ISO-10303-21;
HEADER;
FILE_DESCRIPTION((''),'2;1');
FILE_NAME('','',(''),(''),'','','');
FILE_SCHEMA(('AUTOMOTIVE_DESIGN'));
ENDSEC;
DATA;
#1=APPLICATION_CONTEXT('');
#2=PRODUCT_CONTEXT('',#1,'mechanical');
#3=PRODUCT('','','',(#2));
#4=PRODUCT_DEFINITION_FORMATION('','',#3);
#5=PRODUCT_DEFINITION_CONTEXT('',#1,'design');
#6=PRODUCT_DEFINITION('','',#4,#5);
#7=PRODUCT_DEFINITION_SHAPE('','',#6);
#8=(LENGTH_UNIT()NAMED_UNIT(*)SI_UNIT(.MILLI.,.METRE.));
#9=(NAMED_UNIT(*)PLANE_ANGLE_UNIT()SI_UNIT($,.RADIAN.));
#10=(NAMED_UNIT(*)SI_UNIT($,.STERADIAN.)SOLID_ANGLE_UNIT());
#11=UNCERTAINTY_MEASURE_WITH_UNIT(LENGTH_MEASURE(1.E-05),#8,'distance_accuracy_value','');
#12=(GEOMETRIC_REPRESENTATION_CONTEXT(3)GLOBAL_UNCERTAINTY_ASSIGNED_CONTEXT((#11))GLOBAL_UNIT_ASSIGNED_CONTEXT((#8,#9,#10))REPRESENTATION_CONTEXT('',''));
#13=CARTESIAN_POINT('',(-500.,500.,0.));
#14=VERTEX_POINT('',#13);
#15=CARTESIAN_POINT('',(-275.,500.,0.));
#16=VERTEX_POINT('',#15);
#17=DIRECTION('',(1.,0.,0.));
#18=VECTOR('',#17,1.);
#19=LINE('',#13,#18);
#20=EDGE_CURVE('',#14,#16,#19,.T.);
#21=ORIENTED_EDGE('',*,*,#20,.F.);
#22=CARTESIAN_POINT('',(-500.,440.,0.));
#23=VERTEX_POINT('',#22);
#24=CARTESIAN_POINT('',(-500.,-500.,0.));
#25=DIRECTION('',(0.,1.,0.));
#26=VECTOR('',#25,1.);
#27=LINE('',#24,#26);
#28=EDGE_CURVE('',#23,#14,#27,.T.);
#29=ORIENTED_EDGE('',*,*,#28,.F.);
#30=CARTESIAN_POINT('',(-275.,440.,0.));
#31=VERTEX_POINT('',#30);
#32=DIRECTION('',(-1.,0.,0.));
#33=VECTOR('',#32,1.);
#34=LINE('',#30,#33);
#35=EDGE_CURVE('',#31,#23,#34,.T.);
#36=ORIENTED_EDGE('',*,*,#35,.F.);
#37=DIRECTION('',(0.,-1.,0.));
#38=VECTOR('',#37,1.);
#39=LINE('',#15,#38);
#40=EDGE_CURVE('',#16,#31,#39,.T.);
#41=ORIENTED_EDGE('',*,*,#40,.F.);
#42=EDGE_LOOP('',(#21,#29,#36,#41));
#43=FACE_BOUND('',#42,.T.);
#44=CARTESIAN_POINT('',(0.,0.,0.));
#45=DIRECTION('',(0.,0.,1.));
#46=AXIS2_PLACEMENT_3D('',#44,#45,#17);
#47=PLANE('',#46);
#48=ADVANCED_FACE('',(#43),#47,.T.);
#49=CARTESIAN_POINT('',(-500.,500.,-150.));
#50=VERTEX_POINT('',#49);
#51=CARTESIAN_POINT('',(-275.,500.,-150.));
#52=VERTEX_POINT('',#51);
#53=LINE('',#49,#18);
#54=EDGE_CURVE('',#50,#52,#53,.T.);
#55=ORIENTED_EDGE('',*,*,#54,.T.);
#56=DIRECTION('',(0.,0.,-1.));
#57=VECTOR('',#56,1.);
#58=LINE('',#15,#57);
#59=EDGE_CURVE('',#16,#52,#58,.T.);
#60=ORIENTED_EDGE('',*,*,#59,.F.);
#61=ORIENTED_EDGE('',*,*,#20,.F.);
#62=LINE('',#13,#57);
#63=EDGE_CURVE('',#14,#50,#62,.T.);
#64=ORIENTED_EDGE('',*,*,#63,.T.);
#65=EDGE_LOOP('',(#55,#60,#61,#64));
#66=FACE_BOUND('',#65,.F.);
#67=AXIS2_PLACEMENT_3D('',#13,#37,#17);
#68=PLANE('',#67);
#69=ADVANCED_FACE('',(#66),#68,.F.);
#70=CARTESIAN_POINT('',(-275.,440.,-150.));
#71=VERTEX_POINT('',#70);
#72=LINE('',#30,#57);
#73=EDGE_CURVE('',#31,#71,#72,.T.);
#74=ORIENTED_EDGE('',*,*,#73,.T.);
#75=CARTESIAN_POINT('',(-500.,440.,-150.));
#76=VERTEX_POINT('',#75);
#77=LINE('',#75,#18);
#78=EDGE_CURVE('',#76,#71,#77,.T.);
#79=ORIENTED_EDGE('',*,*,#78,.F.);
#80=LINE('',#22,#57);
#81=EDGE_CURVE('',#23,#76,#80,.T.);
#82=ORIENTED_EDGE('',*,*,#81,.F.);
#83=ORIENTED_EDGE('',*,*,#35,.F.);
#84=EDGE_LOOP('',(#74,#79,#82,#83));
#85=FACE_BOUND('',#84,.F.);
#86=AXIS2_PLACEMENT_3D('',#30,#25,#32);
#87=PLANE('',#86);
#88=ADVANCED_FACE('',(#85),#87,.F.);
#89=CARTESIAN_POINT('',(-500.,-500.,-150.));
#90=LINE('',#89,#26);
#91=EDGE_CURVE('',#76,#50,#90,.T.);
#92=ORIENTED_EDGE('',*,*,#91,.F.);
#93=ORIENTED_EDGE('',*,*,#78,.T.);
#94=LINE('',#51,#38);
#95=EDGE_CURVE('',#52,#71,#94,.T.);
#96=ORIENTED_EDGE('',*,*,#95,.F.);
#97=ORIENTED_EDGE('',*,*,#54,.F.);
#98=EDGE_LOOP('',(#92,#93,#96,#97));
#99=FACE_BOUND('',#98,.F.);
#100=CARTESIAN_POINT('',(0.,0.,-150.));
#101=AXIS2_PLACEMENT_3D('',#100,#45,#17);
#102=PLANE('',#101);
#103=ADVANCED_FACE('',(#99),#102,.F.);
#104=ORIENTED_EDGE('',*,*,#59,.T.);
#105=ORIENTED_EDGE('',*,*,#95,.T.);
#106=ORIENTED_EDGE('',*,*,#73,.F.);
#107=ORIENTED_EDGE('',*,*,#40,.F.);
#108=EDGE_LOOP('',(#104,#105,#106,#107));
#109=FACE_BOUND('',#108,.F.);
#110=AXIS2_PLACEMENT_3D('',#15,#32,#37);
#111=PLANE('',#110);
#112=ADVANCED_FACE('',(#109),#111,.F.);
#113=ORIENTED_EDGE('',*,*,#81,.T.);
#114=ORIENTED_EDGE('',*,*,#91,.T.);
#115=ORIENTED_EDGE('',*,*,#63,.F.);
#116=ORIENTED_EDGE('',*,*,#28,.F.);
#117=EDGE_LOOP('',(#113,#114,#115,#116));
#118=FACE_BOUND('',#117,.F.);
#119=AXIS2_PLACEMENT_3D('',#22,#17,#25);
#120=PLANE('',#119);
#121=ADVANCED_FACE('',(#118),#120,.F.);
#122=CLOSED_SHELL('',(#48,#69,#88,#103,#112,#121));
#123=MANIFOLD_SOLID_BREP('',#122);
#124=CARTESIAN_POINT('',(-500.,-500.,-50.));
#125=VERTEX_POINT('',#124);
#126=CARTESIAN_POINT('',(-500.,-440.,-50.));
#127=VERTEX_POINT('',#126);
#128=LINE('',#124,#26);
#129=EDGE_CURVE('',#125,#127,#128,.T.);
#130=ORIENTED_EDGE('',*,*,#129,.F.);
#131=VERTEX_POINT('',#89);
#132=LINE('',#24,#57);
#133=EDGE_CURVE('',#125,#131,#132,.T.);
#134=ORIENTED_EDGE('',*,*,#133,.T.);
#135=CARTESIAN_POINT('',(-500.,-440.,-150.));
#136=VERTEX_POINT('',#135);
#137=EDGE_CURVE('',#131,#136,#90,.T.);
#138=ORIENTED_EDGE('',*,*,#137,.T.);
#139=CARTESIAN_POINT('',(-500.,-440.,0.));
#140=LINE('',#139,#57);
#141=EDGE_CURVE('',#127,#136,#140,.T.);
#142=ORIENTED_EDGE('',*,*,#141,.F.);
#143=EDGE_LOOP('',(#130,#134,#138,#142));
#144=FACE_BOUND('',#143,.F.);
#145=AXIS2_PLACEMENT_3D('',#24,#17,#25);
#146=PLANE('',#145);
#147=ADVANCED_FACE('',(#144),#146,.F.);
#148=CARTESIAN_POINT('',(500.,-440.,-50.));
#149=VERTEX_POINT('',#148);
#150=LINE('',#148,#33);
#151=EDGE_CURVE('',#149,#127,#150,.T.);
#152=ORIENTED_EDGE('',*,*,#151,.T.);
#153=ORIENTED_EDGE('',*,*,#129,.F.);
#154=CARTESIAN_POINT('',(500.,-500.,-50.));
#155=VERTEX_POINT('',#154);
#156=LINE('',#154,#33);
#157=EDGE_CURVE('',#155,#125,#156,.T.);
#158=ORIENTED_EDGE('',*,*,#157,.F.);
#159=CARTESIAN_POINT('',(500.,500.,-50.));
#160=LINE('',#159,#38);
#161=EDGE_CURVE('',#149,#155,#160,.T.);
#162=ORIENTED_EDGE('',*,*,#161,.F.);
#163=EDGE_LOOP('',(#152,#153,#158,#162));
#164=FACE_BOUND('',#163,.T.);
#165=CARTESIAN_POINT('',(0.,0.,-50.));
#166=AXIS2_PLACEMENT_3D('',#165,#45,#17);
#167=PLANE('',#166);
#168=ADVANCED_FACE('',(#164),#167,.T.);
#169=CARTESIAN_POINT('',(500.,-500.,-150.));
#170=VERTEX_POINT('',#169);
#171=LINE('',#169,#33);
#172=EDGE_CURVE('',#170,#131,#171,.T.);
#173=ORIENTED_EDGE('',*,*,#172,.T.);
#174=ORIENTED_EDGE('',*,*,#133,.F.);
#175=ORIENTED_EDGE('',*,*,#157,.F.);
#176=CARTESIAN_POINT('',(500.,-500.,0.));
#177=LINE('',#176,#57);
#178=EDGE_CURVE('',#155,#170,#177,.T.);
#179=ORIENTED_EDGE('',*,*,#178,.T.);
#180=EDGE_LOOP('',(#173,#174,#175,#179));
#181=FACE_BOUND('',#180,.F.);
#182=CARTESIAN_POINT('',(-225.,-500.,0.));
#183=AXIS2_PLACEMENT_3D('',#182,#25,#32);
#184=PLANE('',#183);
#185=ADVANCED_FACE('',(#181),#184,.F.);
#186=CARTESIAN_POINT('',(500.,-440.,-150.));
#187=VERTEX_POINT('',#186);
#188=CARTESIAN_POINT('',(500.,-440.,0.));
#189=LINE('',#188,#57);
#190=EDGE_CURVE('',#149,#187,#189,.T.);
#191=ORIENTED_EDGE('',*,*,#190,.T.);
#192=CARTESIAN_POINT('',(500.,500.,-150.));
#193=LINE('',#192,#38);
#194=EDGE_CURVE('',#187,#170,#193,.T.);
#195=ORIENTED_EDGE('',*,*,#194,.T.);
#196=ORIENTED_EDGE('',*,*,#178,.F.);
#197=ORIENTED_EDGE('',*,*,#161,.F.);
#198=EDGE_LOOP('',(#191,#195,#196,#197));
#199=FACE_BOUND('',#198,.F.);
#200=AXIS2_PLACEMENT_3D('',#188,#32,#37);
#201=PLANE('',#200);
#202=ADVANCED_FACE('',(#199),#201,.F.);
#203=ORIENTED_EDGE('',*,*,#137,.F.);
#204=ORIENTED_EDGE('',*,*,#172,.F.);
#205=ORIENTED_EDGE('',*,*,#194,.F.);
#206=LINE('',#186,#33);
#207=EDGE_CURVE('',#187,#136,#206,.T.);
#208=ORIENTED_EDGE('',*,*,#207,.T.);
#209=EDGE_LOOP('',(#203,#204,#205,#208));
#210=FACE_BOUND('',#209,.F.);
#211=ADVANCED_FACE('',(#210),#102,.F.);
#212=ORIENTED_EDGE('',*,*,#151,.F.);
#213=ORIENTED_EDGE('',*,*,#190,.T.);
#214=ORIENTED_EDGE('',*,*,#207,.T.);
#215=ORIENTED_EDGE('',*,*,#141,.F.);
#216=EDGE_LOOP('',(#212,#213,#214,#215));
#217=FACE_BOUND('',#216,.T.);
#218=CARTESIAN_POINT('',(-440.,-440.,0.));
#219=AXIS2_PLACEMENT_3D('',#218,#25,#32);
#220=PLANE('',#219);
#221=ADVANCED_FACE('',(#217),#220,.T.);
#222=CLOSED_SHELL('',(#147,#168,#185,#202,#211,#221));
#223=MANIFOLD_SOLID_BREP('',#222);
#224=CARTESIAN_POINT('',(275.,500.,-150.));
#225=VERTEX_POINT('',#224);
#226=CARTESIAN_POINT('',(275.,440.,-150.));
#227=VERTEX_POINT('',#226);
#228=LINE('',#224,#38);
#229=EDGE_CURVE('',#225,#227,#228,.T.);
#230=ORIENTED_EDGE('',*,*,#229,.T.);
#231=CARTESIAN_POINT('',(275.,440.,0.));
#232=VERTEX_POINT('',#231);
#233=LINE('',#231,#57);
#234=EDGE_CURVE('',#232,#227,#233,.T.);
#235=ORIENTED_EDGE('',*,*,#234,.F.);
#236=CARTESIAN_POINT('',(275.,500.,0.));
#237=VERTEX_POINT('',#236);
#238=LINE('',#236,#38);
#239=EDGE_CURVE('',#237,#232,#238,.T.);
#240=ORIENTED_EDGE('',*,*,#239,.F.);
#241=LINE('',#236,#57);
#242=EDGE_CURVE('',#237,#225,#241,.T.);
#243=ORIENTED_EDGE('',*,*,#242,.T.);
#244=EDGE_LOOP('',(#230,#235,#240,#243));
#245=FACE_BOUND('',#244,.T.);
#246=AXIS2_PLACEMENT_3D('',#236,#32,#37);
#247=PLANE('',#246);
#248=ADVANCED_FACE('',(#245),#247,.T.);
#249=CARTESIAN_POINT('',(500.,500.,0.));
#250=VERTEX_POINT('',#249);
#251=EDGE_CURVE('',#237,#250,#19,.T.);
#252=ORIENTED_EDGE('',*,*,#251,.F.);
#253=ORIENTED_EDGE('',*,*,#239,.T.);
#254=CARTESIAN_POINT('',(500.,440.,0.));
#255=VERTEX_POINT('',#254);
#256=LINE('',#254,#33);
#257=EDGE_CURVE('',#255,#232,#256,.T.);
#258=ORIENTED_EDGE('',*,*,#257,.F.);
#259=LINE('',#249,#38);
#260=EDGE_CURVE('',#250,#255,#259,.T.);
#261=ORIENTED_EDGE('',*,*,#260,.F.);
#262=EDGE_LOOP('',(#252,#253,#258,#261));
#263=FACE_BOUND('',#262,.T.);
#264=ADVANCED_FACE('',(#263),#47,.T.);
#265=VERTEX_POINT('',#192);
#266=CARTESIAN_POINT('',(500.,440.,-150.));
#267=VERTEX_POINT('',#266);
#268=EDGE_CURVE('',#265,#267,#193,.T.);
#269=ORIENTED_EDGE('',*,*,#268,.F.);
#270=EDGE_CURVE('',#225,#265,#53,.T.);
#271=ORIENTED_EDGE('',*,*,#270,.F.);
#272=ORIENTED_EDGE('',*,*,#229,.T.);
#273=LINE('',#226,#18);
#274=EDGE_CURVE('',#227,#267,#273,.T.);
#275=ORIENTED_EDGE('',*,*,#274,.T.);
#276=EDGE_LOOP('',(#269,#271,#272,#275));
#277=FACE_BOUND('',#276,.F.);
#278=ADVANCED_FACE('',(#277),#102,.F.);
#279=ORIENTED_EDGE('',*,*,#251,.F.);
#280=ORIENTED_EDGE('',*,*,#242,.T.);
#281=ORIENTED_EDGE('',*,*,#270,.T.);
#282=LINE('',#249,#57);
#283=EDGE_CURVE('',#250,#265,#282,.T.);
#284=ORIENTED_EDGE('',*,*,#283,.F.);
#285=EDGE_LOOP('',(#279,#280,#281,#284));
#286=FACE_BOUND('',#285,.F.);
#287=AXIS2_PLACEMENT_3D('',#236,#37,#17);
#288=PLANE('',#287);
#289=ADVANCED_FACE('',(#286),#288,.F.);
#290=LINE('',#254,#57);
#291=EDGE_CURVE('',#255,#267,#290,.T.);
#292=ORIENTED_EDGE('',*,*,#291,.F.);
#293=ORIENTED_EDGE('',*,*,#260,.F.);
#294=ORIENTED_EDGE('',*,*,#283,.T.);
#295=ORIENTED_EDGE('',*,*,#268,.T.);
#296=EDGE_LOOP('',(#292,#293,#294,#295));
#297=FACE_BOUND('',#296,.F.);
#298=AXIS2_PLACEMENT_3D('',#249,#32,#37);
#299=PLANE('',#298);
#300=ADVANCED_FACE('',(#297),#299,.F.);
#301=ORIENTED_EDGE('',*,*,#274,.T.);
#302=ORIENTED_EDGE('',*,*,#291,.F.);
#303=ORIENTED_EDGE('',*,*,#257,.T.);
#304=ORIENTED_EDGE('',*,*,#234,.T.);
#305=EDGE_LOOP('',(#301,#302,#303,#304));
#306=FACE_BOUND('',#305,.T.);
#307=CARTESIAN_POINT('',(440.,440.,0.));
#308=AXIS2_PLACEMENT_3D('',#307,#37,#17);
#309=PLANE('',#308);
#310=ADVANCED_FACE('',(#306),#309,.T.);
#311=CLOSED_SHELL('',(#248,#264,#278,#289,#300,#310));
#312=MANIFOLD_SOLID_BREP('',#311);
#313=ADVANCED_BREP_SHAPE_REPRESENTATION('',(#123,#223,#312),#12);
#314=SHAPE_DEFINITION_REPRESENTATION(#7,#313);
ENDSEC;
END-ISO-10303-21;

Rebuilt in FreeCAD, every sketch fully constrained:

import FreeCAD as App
import Part
import Sketcher
from FreeCAD import Vector
Q = App.Units.Quantity

doc = App.newDocument("Part")
body = doc.addObject("PartDesign::Body", "Body")
body.AllowCompound = True

sketch1 = body.newObject("Sketcher::SketchObject", "Sketch")
sketch1.AttachmentSupport = (doc.getObject("XY_Plane"), [""])
sketch1.MapMode = "FlatFace"
sketch1.addGeometry([
    Part.LineSegment(Vector(-275, 500, 0), Vector(-500, 500, 0)),
    Part.LineSegment(Vector(-500, 500, 0), Vector(-500, 440, 0)),
    Part.LineSegment(Vector(-500, 440, 0), Vector(-275, 440, 0)),
    Part.LineSegment(Vector(-275, 440, 0), Vector(-275, 500, 0)),
    Part.LineSegment(Vector(500, 500, 0), Vector(275, 500, 0)),
    Part.LineSegment(Vector(275, 500, 0), Vector(275, 440, 0)),
    Part.LineSegment(Vector(275, 440, 0), Vector(500, 440, 0)),
    Part.LineSegment(Vector(500, 440, 0), Vector(500, 500, 0)),
    Part.LineSegment(Vector(-500, -440, 0), Vector(-500, -500, 0)),
    Part.LineSegment(Vector(-500, -500, 0), Vector(500, -500, 0)),
    Part.LineSegment(Vector(500, -500, 0), Vector(500, -440, 0)),
    Part.LineSegment(Vector(500, -440, 0), Vector(-500, -440, 0)),
], False)
sketch1.addConstraint([
    Sketcher.Constraint("Coincident", 0, 2, 1, 1),
    Sketcher.Constraint("Coincident", 1, 2, 2, 1),
    Sketcher.Constraint("Coincident", 2, 2, 3, 1),
    Sketcher.Constraint("Coincident", 3, 2, 0, 1),
    Sketcher.Constraint("Coincident", 4, 2, 5, 1),
    Sketcher.Constraint("Coincident", 5, 2, 6, 1),
    Sketcher.Constraint("Coincident", 6, 2, 7, 1),
    Sketcher.Constraint("Coincident", 7, 2, 4, 1),
    Sketcher.Constraint("Coincident", 8, 2, 9, 1),
    Sketcher.Constraint("Coincident", 9, 2, 10, 1),
    Sketcher.Constraint("Coincident", 10, 2, 11, 1),
    Sketcher.Constraint("Coincident", 11, 2, 8, 1),
    Sketcher.Constraint("Horizontal", 0),
    Sketcher.Constraint("Vertical", 1),
    Sketcher.Constraint("Horizontal", 2),
    Sketcher.Constraint("Vertical", 3),
    Sketcher.Constraint("Horizontal", 4),
    Sketcher.Constraint("Vertical", 5),
    Sketcher.Constraint("Horizontal", 6),
    Sketcher.Constraint("Vertical", 7),
    Sketcher.Constraint("Vertical", 8),
    Sketcher.Constraint("Horizontal", 9),
    Sketcher.Constraint("Vertical", 10),
    Sketcher.Constraint("Horizontal", 11),
    Sketcher.Constraint("Symmetric", 7, 2, 8, 2, -1, 1),
    Sketcher.Constraint("Symmetric", 0, 2, 9, 2, -1, 1),
    Sketcher.Constraint("Symmetric", 2, 2, 5, 2, -2),
    Sketcher.Constraint("Symmetric", 6, 2, 10, 2, -1),
    Sketcher.Constraint("DistanceX", 0, 2, 0, 1, Q("225 mm")),
    Sketcher.Constraint("DistanceX", 9, 1, 9, 2, Q("1000 mm")),
    Sketcher.Constraint("DistanceY", 1, 2, 1, 1, Q("60 mm")),
    Sketcher.Constraint("DistanceY", 8, 2, 0, 2, Q("1000 mm")),
])
pad1 = body.newObject("PartDesign::Pad", "Pad")
pad1.Profile = sketch1
pad1.Length = 150
pad1.Reversed = True

sketch2 = body.newObject("Sketcher::SketchObject", "Sketch001")
sketch2.AttachmentSupport = (doc.getObject("XY_Plane"), [""])
sketch2.MapMode = "FlatFace"
sketch2.addGeometry([
    Part.LineSegment(Vector(-500, -440, 0), Vector(-500, -500, 0)),
    Part.LineSegment(Vector(-500, -500, 0), Vector(500, -500, 0)),
    Part.LineSegment(Vector(500, -500, 0), Vector(500, -440, 0)),
    Part.LineSegment(Vector(500, -440, 0), Vector(-500, -440, 0)),
], False)
sketch2.addConstraint([
    Sketcher.Constraint("Coincident", 0, 2, 1, 1),
    Sketcher.Constraint("Coincident", 1, 2, 2, 1),
    Sketcher.Constraint("Coincident", 2, 2, 3, 1),
    Sketcher.Constraint("Coincident", 3, 2, 0, 1),
    Sketcher.Constraint("Vertical", 0),
    Sketcher.Constraint("Horizontal", 1),
    Sketcher.Constraint("Vertical", 2),
    Sketcher.Constraint("Horizontal", 3),
    Sketcher.Constraint("DistanceX", 1, 1, 1, 2, Q("1000 mm")),
    Sketcher.Constraint("DistanceY", 0, 2, 0, 1, Q("60 mm")),
    Sketcher.Constraint("DistanceX", 0, 2, -1, 1, Q("500 mm")),
    Sketcher.Constraint("DistanceY", 0, 2, -1, 1, Q("500 mm")),
])
pocket1 = body.newObject("PartDesign::Pocket", "Pocket")
pocket1.Profile = sketch2
pocket1.Length = 50

doc.recompute()
